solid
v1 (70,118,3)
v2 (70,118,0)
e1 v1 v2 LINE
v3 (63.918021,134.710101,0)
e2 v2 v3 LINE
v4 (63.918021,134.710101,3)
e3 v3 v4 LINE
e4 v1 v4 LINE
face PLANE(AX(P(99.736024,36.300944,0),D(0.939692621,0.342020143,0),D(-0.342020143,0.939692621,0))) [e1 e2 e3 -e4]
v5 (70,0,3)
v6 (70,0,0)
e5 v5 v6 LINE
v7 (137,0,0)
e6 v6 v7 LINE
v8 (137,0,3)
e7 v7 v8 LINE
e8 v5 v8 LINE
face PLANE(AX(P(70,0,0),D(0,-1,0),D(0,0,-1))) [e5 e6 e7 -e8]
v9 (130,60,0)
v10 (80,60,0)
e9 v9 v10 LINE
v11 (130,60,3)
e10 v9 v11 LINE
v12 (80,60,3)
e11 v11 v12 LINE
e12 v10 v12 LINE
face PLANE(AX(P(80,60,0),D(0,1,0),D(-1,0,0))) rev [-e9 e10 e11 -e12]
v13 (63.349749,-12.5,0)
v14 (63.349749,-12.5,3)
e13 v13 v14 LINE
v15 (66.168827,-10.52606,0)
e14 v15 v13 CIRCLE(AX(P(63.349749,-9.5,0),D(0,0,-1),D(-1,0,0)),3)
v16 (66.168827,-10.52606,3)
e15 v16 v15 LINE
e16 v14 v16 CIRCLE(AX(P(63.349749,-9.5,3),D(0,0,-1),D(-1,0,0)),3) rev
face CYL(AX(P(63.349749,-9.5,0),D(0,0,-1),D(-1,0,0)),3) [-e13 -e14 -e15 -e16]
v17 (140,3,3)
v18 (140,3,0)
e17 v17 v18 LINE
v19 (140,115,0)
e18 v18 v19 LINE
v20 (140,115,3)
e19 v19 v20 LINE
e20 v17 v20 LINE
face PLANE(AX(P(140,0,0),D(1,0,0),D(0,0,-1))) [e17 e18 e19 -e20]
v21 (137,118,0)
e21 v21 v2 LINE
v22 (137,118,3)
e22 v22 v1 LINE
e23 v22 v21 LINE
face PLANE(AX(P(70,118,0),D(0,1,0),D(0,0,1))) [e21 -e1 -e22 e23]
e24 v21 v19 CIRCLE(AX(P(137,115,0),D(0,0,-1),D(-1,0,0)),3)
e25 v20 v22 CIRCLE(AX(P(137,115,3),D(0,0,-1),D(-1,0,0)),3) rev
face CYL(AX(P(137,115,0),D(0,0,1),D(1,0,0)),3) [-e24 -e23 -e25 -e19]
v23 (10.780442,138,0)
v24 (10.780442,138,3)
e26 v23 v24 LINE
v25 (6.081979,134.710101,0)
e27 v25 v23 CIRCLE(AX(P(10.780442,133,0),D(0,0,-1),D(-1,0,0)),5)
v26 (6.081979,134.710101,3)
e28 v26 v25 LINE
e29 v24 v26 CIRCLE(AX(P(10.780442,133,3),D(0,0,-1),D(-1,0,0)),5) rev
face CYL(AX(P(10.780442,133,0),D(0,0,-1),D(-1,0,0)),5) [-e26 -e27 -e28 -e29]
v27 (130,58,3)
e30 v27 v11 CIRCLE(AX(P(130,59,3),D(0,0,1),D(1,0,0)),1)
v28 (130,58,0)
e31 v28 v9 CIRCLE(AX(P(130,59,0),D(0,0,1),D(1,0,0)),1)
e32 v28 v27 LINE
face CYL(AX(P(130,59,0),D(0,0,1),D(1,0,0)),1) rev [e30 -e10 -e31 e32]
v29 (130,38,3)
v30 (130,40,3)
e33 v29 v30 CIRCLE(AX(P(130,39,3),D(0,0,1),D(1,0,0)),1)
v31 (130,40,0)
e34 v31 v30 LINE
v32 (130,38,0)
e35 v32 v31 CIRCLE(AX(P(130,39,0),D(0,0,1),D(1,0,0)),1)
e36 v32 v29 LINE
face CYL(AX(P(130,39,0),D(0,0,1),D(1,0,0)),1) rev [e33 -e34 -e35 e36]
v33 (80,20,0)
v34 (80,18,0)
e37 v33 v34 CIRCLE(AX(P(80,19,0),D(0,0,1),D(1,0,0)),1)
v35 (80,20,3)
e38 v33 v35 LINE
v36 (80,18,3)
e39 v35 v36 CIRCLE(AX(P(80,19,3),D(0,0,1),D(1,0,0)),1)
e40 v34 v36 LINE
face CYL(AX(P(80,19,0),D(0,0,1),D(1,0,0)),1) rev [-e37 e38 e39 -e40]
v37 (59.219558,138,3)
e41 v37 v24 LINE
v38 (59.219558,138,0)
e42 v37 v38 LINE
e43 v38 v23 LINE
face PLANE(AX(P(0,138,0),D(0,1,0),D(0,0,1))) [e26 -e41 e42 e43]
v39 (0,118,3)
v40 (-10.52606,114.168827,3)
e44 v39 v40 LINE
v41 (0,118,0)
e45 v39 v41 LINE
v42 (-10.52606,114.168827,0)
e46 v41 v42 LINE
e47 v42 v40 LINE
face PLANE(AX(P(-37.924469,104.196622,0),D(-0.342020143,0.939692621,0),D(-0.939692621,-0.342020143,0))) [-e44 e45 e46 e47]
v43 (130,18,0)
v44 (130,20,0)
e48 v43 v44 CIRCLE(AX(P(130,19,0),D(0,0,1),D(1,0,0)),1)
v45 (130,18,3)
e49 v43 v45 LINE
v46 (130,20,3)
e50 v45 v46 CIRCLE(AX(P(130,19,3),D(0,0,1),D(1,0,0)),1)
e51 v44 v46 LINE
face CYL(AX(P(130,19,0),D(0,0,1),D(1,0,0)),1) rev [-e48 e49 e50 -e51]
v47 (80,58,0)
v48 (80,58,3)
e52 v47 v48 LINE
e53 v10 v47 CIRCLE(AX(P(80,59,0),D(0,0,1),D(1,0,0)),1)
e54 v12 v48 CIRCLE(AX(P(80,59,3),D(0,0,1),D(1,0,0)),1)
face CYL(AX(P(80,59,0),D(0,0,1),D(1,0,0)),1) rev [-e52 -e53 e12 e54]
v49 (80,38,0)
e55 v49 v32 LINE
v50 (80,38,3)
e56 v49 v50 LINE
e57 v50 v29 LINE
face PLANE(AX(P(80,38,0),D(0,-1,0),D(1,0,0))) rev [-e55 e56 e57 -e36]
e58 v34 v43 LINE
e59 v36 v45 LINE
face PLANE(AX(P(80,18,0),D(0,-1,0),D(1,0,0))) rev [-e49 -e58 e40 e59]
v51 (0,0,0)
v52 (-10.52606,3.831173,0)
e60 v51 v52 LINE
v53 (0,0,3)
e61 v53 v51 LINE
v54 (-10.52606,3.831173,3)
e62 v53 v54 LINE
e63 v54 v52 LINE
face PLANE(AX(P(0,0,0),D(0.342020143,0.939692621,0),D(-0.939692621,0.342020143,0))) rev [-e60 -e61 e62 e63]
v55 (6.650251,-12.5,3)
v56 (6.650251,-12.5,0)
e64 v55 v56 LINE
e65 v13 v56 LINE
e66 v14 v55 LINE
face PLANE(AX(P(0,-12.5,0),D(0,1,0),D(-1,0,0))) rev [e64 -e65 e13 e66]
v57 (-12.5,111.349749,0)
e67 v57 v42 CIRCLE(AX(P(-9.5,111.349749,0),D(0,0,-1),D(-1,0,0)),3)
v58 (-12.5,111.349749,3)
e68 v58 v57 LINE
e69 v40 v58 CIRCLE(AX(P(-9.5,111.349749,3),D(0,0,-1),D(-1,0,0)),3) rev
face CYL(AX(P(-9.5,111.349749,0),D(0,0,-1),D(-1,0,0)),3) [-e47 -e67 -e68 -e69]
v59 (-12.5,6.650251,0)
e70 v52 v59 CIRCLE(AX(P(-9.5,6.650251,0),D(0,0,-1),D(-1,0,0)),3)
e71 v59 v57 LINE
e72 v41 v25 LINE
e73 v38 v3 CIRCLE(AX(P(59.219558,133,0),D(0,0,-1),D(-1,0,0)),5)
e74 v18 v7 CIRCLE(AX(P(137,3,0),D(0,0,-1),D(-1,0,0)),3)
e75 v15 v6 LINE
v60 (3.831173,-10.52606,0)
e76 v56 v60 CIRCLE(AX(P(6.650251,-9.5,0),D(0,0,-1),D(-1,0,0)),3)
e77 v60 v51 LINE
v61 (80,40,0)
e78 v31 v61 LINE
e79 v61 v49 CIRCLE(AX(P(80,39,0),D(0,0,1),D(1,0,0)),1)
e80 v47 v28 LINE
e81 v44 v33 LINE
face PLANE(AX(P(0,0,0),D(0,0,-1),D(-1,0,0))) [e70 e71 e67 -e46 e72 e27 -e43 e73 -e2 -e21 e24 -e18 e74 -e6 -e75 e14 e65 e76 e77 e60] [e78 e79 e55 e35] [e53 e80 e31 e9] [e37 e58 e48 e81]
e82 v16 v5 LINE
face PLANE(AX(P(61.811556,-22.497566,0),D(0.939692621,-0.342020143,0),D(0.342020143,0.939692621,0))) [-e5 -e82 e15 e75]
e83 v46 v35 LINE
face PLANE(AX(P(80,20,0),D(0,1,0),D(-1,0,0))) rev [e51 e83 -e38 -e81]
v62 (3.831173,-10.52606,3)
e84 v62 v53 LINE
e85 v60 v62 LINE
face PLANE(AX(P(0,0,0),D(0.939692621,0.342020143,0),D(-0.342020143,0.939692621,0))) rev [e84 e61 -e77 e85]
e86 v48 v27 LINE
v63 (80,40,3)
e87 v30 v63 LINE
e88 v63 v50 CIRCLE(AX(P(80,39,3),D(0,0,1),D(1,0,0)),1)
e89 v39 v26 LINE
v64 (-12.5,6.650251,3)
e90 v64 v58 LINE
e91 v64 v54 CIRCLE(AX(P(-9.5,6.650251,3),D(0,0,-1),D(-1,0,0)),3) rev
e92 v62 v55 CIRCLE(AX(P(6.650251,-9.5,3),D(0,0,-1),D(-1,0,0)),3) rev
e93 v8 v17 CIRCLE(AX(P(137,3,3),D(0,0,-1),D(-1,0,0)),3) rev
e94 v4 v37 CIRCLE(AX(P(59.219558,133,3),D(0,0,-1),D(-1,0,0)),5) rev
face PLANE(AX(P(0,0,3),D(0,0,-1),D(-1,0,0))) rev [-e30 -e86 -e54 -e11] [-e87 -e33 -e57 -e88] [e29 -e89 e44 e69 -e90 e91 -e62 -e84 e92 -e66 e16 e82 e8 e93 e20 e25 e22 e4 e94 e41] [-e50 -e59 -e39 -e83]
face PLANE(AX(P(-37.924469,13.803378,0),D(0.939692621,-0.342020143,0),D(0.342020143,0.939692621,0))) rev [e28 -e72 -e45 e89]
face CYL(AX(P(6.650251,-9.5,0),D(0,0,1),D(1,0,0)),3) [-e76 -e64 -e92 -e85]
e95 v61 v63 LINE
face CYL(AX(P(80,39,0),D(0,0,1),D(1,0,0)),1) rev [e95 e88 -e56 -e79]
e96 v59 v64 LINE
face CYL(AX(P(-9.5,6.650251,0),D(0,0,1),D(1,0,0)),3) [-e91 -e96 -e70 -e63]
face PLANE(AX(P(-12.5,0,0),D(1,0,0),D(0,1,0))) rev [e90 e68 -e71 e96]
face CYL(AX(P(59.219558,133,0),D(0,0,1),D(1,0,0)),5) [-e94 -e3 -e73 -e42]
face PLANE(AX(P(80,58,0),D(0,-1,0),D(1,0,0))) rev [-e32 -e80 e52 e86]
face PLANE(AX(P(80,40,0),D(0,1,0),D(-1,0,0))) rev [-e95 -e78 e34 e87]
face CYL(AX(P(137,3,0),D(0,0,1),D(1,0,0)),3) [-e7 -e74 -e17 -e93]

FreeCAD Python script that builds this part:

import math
import FreeCAD as App
import Part
import Sketcher
from FreeCAD import Vector
Q = App.Units.Quantity


def edges_at(feature, points):
    """Names of the edges that pass closest to the given points."""
    edges = feature.Shape.Edges
    near = lambda p: min(range(len(edges)), key=lambda i: edges[i].distToShape(Part.Vertex(*p))[0])
    return sorted({f"Edge{near(p) + 1}" for p in points})


def add_polygon(sketch, points):
    """Adds a closed chain of lines whose ends are joined by coincident constraints."""
    first, n = sketch.GeometryCount, len(points)
    for a, b in zip(points, points[1:] + points[:1]):
        sketch.addGeometry(Part.LineSegment(App.Vector(*a, 0), App.Vector(*b, 0)), False)
    for i in range(n):
        sketch.addConstraint(Sketcher.Constraint("Coincident", first + i, 2, first + (i + 1) % n, 1))

doc = App.newDocument("Part")
params = doc.addObject("Spreadsheet::Sheet", "Params")
for row, (alias, value) in enumerate([
    ("sketch1_width", "70 mm"),
    ("sketch1_height", "118 mm"),
    ("pad1_length", "3 mm"),
    ("sketch2_width", "70 mm"),
    ("sketch2_height", "118 mm"),
    ("pad2_length", "3 mm"),
    ("fillet_radius", "3 mm"),
    ("fillet2_radius", "3 mm"),
    ("fillet3_radius", "5 mm"),
    ("sketch3_width", "70 mm"),
    ("sketch3_height", "118 mm"),
    ("pad3_length", "3 mm"),
    ("fillet4_radius", "3 mm"),
    ("sketch4_radius", "1 mm"),
    ("sketch4_width", "50 mm"),
], start=1):
    params.set(f"A{row}", alias)
    params.set(f"B{row}", "=" + value)
    params.setAlias(f"B{row}", alias)

body = doc.addObject("PartDesign::Body", "Body")

sketch1 = doc.addObject("Sketcher::SketchObject", "Sketch")
body.addObject(sketch1)
sketch1.AttachmentSupport = (doc.XY_Plane, [""])
sketch1.MapMode = "FlatFace"
add_polygon(sketch1, [(0, 118), (0, 0), (70, 0), (70, 118)])
sketch1.addConstraint(Sketcher.Constraint("Vertical", 0))
sketch1.addConstraint(Sketcher.Constraint("Horizontal", 1))
sketch1.addConstraint(Sketcher.Constraint("Vertical", 2))
sketch1.addConstraint(Sketcher.Constraint("Horizontal", 3))
sketch1.addConstraint(Sketcher.Constraint("Coincident", 0, 2, -1, 1))
sketch1.addConstraint(Sketcher.Constraint("DistanceX", 1, 1, 1, 2, Q("70 mm")))
sketch1.addConstraint(Sketcher.Constraint("DistanceY", 0, 2, 0, 1, Q("118 mm")))
sketch1.setExpression("Constraints[9]", "Params.sketch1_width")
sketch1.setExpression("Constraints[10]", "Params.sketch1_height")
pad1 = doc.addObject("PartDesign::Pad", "Pad")
body.addObject(pad1)
pad1.Profile = sketch1
pad1.setExpression("Length", "Params.pad1_length")

sketch2 = doc.addObject("Sketcher::SketchObject", "Sketch001")
body.addObject(sketch2)
sketch2.AttachmentSupport = (doc.XY_Plane, [""])
sketch2.MapMode = "FlatFace"
sketch2.AttachmentOffset = App.Placement(Vector(0, 0, 3), App.Rotation())
add_polygon(sketch2, [(7, 138), (0, 118), (70, 118), (63, 138)])
add_polygon(sketch2, [(0, 118), (-12, 113), (-12, 5), (0, 0)])
add_polygon(sketch2, [(5, -12), (65, -12), (70, 0), (0, 0)])
sketch2.addConstraint(Sketcher.Constraint("Horizontal", 1))
sketch2.addConstraint(Sketcher.Constraint("Horizontal", 3))
sketch2.addConstraint(Sketcher.Constraint("Vertical", 5))
sketch2.addConstraint(Sketcher.Constraint("Vertical", 7))
sketch2.addConstraint(Sketcher.Constraint("Horizontal", 8))
sketch2.addConstraint(Sketcher.Constraint("Horizontal", 10))
sketch2.addConstraint(Sketcher.Constraint("Coincident", 6, 2, -1, 1))
sketch2.addConstraint(Sketcher.Constraint("Coincident", 10, 2, -1, 1))
sketch2.addConstraint(Sketcher.Constraint("Coincident", 7, 2, 0, 2))
sketch2.addConstraint(Sketcher.Constraint("Perpendicular", 2, 4))
sketch2.addConstraint(Sketcher.Constraint("Perpendicular", 0, 6))
sketch2.addConstraint(Sketcher.Constraint("Perpendicular", 6, 9))
sketch2.addConstraint(Sketcher.Constraint("Perpendicular", 4, 11))
sketch2.addConstraint(Sketcher.Constraint("Vertical", 1, 2, 9, 2))
sketch2.addConstraint(Sketcher.Constraint("Equal", 0, 2))
sketch2.addConstraint(Sketcher.Constraint("Equal", 6, 9))
sketch2.addConstraint(Sketcher.Constraint("DistanceX", 1, 1, 1, 2, Q("70 mm")))
sketch2.addConstraint(Sketcher.Constraint("DistanceY", 7, 1, 7, 2, Q("118 mm")))
sketch2.addConstraint(Sketcher.Constraint("Angle", 0, Q("-110 deg")))
sketch2.addConstraint(Sketcher.Constraint("DistanceY", -1, 1, 2, 2, Q("138 mm")))
sketch2.addConstraint(Sketcher.Constraint("DistanceX", 4, 2, -1, 1, Q("12.5 mm")))
sketch2.setExpression("Constraints[28]", "Params.sketch2_width")
sketch2.setExpression("Constraints[29]", "Params.sketch2_height")
pad2 = doc.addObject("PartDesign::Pad", "Pad001")
body.addObject(pad2)
pad2.Profile = sketch2
pad2.setExpression("Length", "Params.pad2_length")
pad2.Reversed = True
doc.recompute()

fillet = doc.addObject("PartDesign::Fillet", "Fillet")
body.addObject(fillet)
fillet.Base = (pad2, edges_at(pad2, [(-12.5, 4.55, 1.5), (-12.5, 113.45, 1.5)]))
fillet.setExpression("Radius", "Params.fillet_radius")
doc.recompute()

fillet2 = doc.addObject("PartDesign::Fillet", "Fillet001")
body.addObject(fillet2)
fillet2.Base = (fillet, edges_at(fillet, [(65.45, -12.5, 1.5), (4.55, -12.5, 1.5)]))
fillet2.setExpression("Radius", "Params.fillet2_radius")
doc.recompute()

fillet3 = doc.addObject("PartDesign::Fillet", "Fillet002")
body.addObject(fillet3)
fillet3.Base = (fillet2, edges_at(fillet2, [(7.279, 138, 1.5), (62.721, 138, 1.5)]))
fillet3.setExpression("Radius", "Params.fillet3_radius")

sketch3 = doc.addObject("Sketcher::SketchObject", "Sketch002")
body.addObject(sketch3)
sketch3.AttachmentSupport = (doc.XY_Plane, [""])
sketch3.MapMode = "FlatFace"
sketch3.AttachmentOffset = App.Placement(Vector(0, 0, 3), App.Rotation())
add_polygon(sketch3, [(70, 118), (70, 0), (140, 0), (140, 118)])
sketch3.addConstraint(Sketcher.Constraint("Vertical", 0))
sketch3.addConstraint(Sketcher.Constraint("Horizontal", 1))
sketch3.addConstraint(Sketcher.Constraint("Vertical", 2))
sketch3.addConstraint(Sketcher.Constraint("Horizontal", 3))
sketch3.addConstraint(Sketcher.Constraint("PointOnObject", 0, 2, -1))
sketch3.addConstraint(Sketcher.Constraint("DistanceX", 1, 1, 1, 2, Q("70 mm")))
sketch3.addConstraint(Sketcher.Constraint("DistanceY", 0, 2, 0, 1, Q("118 mm")))
sketch3.addConstraint(Sketcher.Constraint("DistanceX", -1, 1, 0, 2, Q("70 mm")))
sketch3.setExpression("Constraints[9]", "Params.sketch3_width")
sketch3.setExpression("Constraints[10]", "Params.sketch3_height")
pad3 = doc.addObject("PartDesign::Pad", "Pad002")
body.addObject(pad3)
pad3.Profile = sketch3
pad3.setExpression("Length", "Params.pad3_length")
pad3.Reversed = True
doc.recompute()

fillet4 = doc.addObject("PartDesign::Fillet", "Fillet003")
body.addObject(fillet4)
fillet4.Base = (pad3, edges_at(pad3, [(140, 118, 1.5), (140, 0, 1.5)]))
fillet4.setExpression("Radius", "Params.fillet4_radius")

sketch4 = doc.addObject("Sketcher::SketchObject", "Sketch003")
body.addObject(sketch4)
sketch4.AttachmentSupport = (doc.XY_Plane, [""])
sketch4.MapMode = "FlatFace"
sketch4.AttachmentOffset = App.Placement(Vector(0, 0, 3), App.Rotation())
sketch4.addGeometry(Part.LineSegment(Vector(130, 60, 0), Vector(80, 60, 0)), False)
sketch4.addGeometry(Part.ArcOfCircle(Part.Circle(Vector(80, 59, 0), Vector(0, 0, 1), 1), math.radians(90), math.radians(270)), False)
sketch4.addGeometry(Part.LineSegment(Vector(80, 58, 0), Vector(130, 58, 0)), False)
sketch4.addGeometry(Part.ArcOfCircle(Part.Circle(Vector(130, 59, 0), Vector(0, 0, 1), 1), math.radians(-90), math.radians(90)), False)
sketch4.addGeometry(Part.LineSegment(Vector(130, 40, 0), Vector(80, 40, 0)), False)
sketch4.addGeometry(Part.ArcOfCircle(Part.Circle(Vector(80, 39, 0), Vector(0, 0, 1), 1), math.radians(90), math.radians(270)), False)
sketch4.addGeometry(Part.LineSegment(Vector(80, 38, 0), Vector(130, 38, 0)), False)
sketch4.addGeometry(Part.ArcOfCircle(Part.Circle(Vector(130, 39, 0), Vector(0, 0, 1), 1), math.radians(-90), math.radians(90)), False)
sketch4.addGeometry(Part.LineSegment(Vector(130, 20, 0), Vector(80, 20, 0)), False)
sketch4.addGeometry(Part.ArcOfCircle(Part.Circle(Vector(80, 19, 0), Vector(0, 0, 1), 1), math.radians(90), math.radians(270)), False)
sketch4.addGeometry(Part.LineSegment(Vector(80, 18, 0), Vector(130, 18, 0)), False)
sketch4.addGeometry(Part.ArcOfCircle(Part.Circle(Vector(130, 19, 0), Vector(0, 0, 1), 1), math.radians(-90), math.radians(90)), False)
sketch4.addConstraint(Sketcher.Constraint("Tangent", 0, 2, 1, 1))
sketch4.addConstraint(Sketcher.Constraint("Tangent", 1, 2, 2, 1))
sketch4.addConstraint(Sketcher.Constraint("Tangent", 2, 2, 3, 1))
sketch4.addConstraint(Sketcher.Constraint("Tangent", 3, 2, 0, 1))
sketch4.addConstraint(Sketcher.Constraint("Tangent", 4, 2, 5, 1))
sketch4.addConstraint(Sketcher.Constraint("Tangent", 5, 2, 6, 1))
sketch4.addConstraint(Sketcher.Constraint("Tangent", 6, 2, 7, 1))
sketch4.addConstraint(Sketcher.Constraint("Tangent", 7, 2, 4, 1))
sketch4.addConstraint(Sketcher.Constraint("Tangent", 8, 2, 9, 1))
sketch4.addConstraint(Sketcher.Constraint("Tangent", 9, 2, 10, 1))
sketch4.addConstraint(Sketcher.Constraint("Tangent", 10, 2, 11, 1))
sketch4.addConstraint(Sketcher.Constraint("Tangent", 11, 2, 8, 1))
sketch4.addConstraint(Sketcher.Constraint("Horizontal", 0))
sketch4.addConstraint(Sketcher.Constraint("Horizontal", 2))
sketch4.addConstraint(Sketcher.Constraint("Horizontal", 4))
sketch4.addConstraint(Sketcher.Constraint("Horizontal", 6))
sketch4.addConstraint(Sketcher.Constraint("Horizontal", 8))
sketch4.addConstraint(Sketcher.Constraint("Horizontal", 10))
sketch4.addConstraint(Sketcher.Constraint("Equal", 3, 5))
sketch4.addConstraint(Sketcher.Constraint("Equal", 7, 9))
sketch4.addConstraint(Sketcher.Constraint("Vertical", 1, 3, 5, 3))
sketch4.addConstraint(Sketcher.Constraint("Vertical", 3, 3, 7, 3))
sketch4.addConstraint(Sketcher.Constraint("Vertical", 5, 3, 9, 3))
sketch4.addConstraint(Sketcher.Constraint("Vertical", 7, 3, 11, 3))
sketch4.addConstraint(Sketcher.Constraint("Radius", 1, Q("1 mm")))
sketch4.addConstraint(Sketcher.Constraint("DistanceX", 0, 2, 0, 1, Q("50 mm")))
sketch4.addConstraint(Sketcher.Constraint("DistanceX", -1, 1, 1, 3, Q("80 mm")))
sketch4.addConstraint(Sketcher.Constraint("DistanceY", -1, 1, 1, 3, Q("59 mm")))
sketch4.addConstraint(Sketcher.Constraint("DistanceY", -1, 1, 5, 3, Q("39 mm")))
sketch4.addConstraint(Sketcher.Constraint("DistanceY", -1, 1, 9, 3, Q("19 mm")))
sketch4.setExpression("Constraints[24]", "Params.sketch4_radius")
sketch4.setExpression("Constraints[25]", "Params.sketch4_width")
pocket1 = doc.addObject("PartDesign::Pocket", "Pocket")
body.addObject(pocket1)
pocket1.Profile = sketch4
pocket1.Type = "ThroughAll"
pocket1.Midplane = True

doc.recompute()
